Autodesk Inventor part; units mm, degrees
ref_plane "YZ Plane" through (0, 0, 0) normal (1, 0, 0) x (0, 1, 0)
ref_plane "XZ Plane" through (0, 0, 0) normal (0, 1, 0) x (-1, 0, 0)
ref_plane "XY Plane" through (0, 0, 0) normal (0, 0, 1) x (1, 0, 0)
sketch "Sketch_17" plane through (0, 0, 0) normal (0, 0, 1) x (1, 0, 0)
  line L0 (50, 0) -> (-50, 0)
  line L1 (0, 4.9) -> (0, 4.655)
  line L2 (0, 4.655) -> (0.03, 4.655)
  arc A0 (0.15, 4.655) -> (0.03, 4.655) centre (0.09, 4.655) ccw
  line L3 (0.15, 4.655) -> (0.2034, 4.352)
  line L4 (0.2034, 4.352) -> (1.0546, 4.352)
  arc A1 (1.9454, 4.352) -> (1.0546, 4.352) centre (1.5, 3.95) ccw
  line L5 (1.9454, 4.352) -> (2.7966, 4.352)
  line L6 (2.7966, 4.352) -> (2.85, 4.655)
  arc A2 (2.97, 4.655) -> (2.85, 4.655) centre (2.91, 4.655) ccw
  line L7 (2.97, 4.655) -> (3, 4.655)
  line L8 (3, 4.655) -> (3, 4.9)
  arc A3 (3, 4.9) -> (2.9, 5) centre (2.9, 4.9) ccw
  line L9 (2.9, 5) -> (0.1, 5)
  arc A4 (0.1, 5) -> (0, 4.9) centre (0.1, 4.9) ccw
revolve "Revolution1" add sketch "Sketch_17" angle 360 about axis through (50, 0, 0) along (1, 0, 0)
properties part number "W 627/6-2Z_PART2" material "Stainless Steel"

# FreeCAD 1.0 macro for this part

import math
import FreeCAD as App
import Part
import Sketcher
from FreeCAD import Vector

doc = App.newDocument("Part")
body = doc.addObject("PartDesign::Body", "Body")

sketch1 = body.newObject("Sketcher::SketchObject", "Sketch")
sketch1.AttachmentSupport = (doc.getObject("XY_Plane"), [""])
sketch1.MapMode = "FlatFace"
sketch1.addGeometry(Part.ArcOfCircle(Part.Circle(Vector(0.1, 4.9, 0), Vector(0, 0, 1), 0.1), math.radians(90), math.radians(180)), False)
sketch1.addGeometry(Part.LineSegment(Vector(0, 4.9, 0), Vector(0, 4.655, 0)), False)
sketch1.addGeometry(Part.LineSegment(Vector(0, 4.655, 0), Vector(0.03, 4.655, 0)), False)
sketch1.addGeometry(Part.ArcOfCircle(Part.Circle(Vector(0.09, 4.655, 0), Vector(0, 0, 1), 0.06), math.radians(0), math.radians(180)), False)
sketch1.addGeometry(Part.LineSegment(Vector(0.15, 4.655, 0), Vector(0.203, 4.352, 0)), False)
sketch1.addGeometry(Part.LineSegment(Vector(0.203, 4.352, 0), Vector(1.055, 4.352, 0)), False)
sketch1.addGeometry(Part.ArcOfCircle(Part.Circle(Vector(1.5, 3.95, 0), Vector(0, 0, 1), 0.6), math.radians(42), math.radians(138)), False)
sketch1.addGeometry(Part.LineSegment(Vector(1.945, 4.352, 0), Vector(2.797, 4.352, 0)), False)
sketch1.addGeometry(Part.LineSegment(Vector(2.797, 4.352, 0), Vector(2.85, 4.655, 0)), False)
sketch1.addGeometry(Part.ArcOfCircle(Part.Circle(Vector(2.91, 4.655, 0), Vector(0, 0, 1), 0.06), math.radians(0), math.radians(180)), False)
sketch1.addGeometry(Part.LineSegment(Vector(2.97, 4.655, 0), Vector(3, 4.655, 0)), False)
sketch1.addGeometry(Part.LineSegment(Vector(3, 4.655, 0), Vector(3, 4.9, 0)), False)
sketch1.addGeometry(Part.ArcOfCircle(Part.Circle(Vector(2.9, 4.9, 0), Vector(0, 0, 1), 0.1), math.radians(0), math.radians(90)), False)
sketch1.addGeometry(Part.LineSegment(Vector(2.9, 5, 0), Vector(0.1, 5, 0)), False)
sketch1.addConstraint(Sketcher.Constraint("Tangent", 0, 2, 1, 1))
sketch1.addConstraint(Sketcher.Constraint("Coincident", 1, 2, 2, 1))
sketch1.addConstraint(Sketcher.Constraint("Coincident", 2, 2, 3, 2))
sketch1.addConstraint(Sketcher.Constraint("Coincident", 3, 1, 4, 1))
sketch1.addConstraint(Sketcher.Constraint("Coincident", 4, 2, 5, 1))
sketch1.addConstraint(Sketcher.Constraint("Coincident", 5, 2, 6, 2))
sketch1.addConstraint(Sketcher.Constraint("Coincident", 6, 1, 7, 1))
sketch1.addConstraint(Sketcher.Constraint("Coincident", 7, 2, 8, 1))
sketch1.addConstraint(Sketcher.Constraint("Coincident", 8, 2, 9, 2))
sketch1.addConstraint(Sketcher.Constraint("Coincident", 9, 1, 10, 1))
sketch1.addConstraint(Sketcher.Constraint("Coincident", 10, 2, 11, 1))
sketch1.addConstraint(Sketcher.Constraint("Tangent", 11, 2, 12, 1))
sketch1.addConstraint(Sketcher.Constraint("Tangent", 12, 2, 13, 1))
sketch1.addConstraint(Sketcher.Constraint("Tangent", 13, 2, 0, 1))
sketch1.addConstraint(Sketcher.Constraint("Vertical", 1))
sketch1.addConstraint(Sketcher.Constraint("Horizontal", 2))
sketch1.addConstraint(Sketcher.Constraint("Horizontal", 5))
sketch1.addConstraint(Sketcher.Constraint("Horizontal", 7))
sketch1.addConstraint(Sketcher.Constraint("Horizontal", 10))
sketch1.addConstraint(Sketcher.Constraint("Vertical", 11))
sketch1.addConstraint(Sketcher.Constraint("Horizontal", 13))
sketch1.addConstraint(Sketcher.Constraint("Equal", 3, 9))
sketch1.addConstraint(Sketcher.Constraint("Equal", 0, 12))
sketch1.addConstraint(Sketcher.Constraint("PointOnObject", 0, 2, -2))
sketch1.addConstraint(Sketcher.Constraint("Horizontal", 3, 3, 9, 3))
sketch1.addConstraint(Sketcher.Constraint("Horizontal", 9, 3, 1, 2))
sketch1.addConstraint(Sketcher.Constraint("Horizontal", 2, 2, 3, 1))
sketch1.addConstraint(Sketcher.Constraint("Horizontal", 5, 2, 6, 1))
sketch1.addConstraint(Sketcher.Constraint("Horizontal", 3, 1, 8, 2))
sketch1.addConstraint(Sketcher.Constraint("Horizontal", 8, 2, 9, 1))
sketch1.addConstraint(Sketcher.Constraint("Equal", 5, 7))
sketch1.addConstraint(Sketcher.Constraint("Equal", 2, 10))
sketch1.addConstraint(Sketcher.Constraint("Equal", 4, 8))
sketch1.addConstraint(Sketcher.Constraint("Radius", 0, 0.1))
sketch1.addConstraint(Sketcher.Constraint("Radius", 6, 0.6))
sketch1.addConstraint(Sketcher.Constraint("Radius", 3, 0.06))
sketch1.addConstraint(Sketcher.Constraint("DistanceX", 13, 2, 13, 1, 2.8))
sketch1.addConstraint(Sketcher.Constraint("DistanceY", -1, 1, 12, 2, 5.0))
sketch1.addConstraint(Sketcher.Constraint("DistanceX", 2, 1, 2, 2, 0.03))
sketch1.addConstraint(Sketcher.Constraint("DistanceY", 1, 2, 1, 1, 0.245))
sketch1.addConstraint(Sketcher.Constraint("DistanceY", -1, 1, 6, 3, 3.95))
sketch1.addConstraint(Sketcher.Constraint("DistanceX", 5, 1, 5, 2, 0.8512))
sketch1.addConstraint(Sketcher.Constraint("DistanceY", -1, 1, 4, 2, 4.352))
revolution = body.newObject("PartDesign::Revolution", "Revolution")
revolution.Profile = sketch1
revolution.ReferenceAxis = (sketch1, ["H_Axis"])
revolution.Angle = 360

doc.recompute()
